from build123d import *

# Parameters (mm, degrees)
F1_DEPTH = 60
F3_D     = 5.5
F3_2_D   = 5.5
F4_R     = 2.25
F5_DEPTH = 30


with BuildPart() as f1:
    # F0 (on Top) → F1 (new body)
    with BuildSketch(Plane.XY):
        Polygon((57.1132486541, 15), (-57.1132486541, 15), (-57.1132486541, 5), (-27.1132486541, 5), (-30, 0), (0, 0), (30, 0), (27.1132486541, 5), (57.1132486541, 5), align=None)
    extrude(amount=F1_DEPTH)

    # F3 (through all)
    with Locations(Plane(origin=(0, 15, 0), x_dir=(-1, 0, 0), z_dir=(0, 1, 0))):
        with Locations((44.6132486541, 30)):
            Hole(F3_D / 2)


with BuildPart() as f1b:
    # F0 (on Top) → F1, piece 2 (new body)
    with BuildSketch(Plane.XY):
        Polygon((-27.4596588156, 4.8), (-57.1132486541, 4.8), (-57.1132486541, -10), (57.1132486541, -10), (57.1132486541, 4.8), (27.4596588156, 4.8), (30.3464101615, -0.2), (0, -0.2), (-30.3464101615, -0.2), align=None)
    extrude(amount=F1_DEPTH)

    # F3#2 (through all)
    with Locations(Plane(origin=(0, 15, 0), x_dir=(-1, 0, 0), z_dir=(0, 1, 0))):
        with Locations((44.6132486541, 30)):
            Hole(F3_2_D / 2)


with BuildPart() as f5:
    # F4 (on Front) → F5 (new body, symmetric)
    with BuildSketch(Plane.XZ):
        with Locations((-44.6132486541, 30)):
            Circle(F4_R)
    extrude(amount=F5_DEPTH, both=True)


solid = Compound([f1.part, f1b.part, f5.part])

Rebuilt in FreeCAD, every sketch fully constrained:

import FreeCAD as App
import Part
import Sketcher

V = App.Vector
Q = App.Units.Quantity


def add_polygon(sketch, points):
    """Adds a closed chain of lines whose ends are joined by coincident constraints."""
    first, n = sketch.GeometryCount, len(points)
    for a, b in zip(points, points[1:] + points[:1]):
        sketch.addGeometry(Part.LineSegment(App.Vector(*a, 0), App.Vector(*b, 0)), False)
    for i in range(n):
        sketch.addConstraint(Sketcher.Constraint("Coincident", first + i, 2, first + (i + 1) % n, 1))

doc = App.newDocument("Part")
body = doc.addObject("PartDesign::Body", "Body")

sketch1 = body.newObject("Sketcher::SketchObject", "Sketch")
sketch1.AttachmentSupport = (doc.getObject("XY_Plane"), [""])
sketch1.MapMode = "FlatFace"
add_polygon(sketch1, [(57, 15), (-57, 15), (-57, 5), (-27, 5), (-30, 0), (30, 0), (27, 5), (57, 5)])
sketch1.addConstraint(Sketcher.Constraint("Horizontal", 0))
sketch1.addConstraint(Sketcher.Constraint("Vertical", 1))
sketch1.addConstraint(Sketcher.Constraint("Horizontal", 2))
sketch1.addConstraint(Sketcher.Constraint("Horizontal", 4))
sketch1.addConstraint(Sketcher.Constraint("Horizontal", 6))
sketch1.addConstraint(Sketcher.Constraint("Vertical", 7))
sketch1.addConstraint(Sketcher.Constraint("Symmetric", 3, 2, 4, 2, -1, 1))
sketch1.addConstraint(Sketcher.Constraint("Symmetric", 2, 2, 5, 2, -2))
sketch1.addConstraint(Sketcher.Constraint("Equal", 2, 6))
sketch1.addConstraint(Sketcher.Constraint("DistanceX", 2, 1, 2, 2, 30.0))
sketch1.addConstraint(Sketcher.Constraint("DistanceX", 4, 1, 4, 2, 60.0))
sketch1.addConstraint(Sketcher.Constraint("DistanceY", 1, 2, 1, 1, 10.0))
sketch1.addConstraint(Sketcher.Constraint("Angle", 3, Q("-120 deg")))
sketch1.addConstraint(Sketcher.Constraint("DistanceY", -1, 1, 0, 2, 15.0))
pad1 = body.newObject("PartDesign::Pad", "Pad")
pad1.Profile = sketch1
pad1.Length = 60

sketch2 = body.newObject("Sketcher::SketchObject", "Sketch001")
sketch2.AttachmentSupport = (doc.getObject("XZ_Plane"), [""])
sketch2.MapMode = "FlatFace"
sketch2.AttachmentOffset = App.Placement(V(0, 0, -15), App.Rotation())
sketch2.addGeometry(Part.Circle(V(-44.6, 30, 0), V(0, 0, 1), 2.8), False)
sketch2.addConstraint(Sketcher.Constraint("Diameter", 0, 5.5))
sketch2.addConstraint(Sketcher.Constraint("DistanceY", -1, 1, 0, 3, 30.0))
sketch2.addConstraint(Sketcher.Constraint("DistanceX", 0, 3, -1, 1, 44.613249))
doc.recompute()
hole = body.newObject("PartDesign::Hole", "Hole")
hole.Profile = sketch2
hole.ThreadType = "None"
hole.Diameter = 5.5
hole.DepthType = "ThroughAll"
hole.Reversed = True
body2 = doc.addObject("PartDesign::Body", "Body001")

sketch3 = body2.newObject("Sketcher::SketchObject", "Sketch002")
sketch3.AttachmentSupport = (doc.getObject("XY_Plane001"), [""])
sketch3.MapMode = "FlatFace"
add_polygon(sketch3, [(-27, 5), (-57, 5), (-57, -10), (57, -10), (57, 5), (27, 5), (30, 0), (-30, 0)])
sketch3.addConstraint(Sketcher.Constraint("Horizontal", 0))
sketch3.addConstraint(Sketcher.Constraint("Vertical", 1))
sketch3.addConstraint(Sketcher.Constraint("Horizontal", 2))
sketch3.addConstraint(Sketcher.Constraint("Vertical", 3))
sketch3.addConstraint(Sketcher.Constraint("Horizontal", 4))
sketch3.addConstraint(Sketcher.Constraint("Horizontal", 6))
sketch3.addConstraint(Sketcher.Constraint("Symmetric", 0, 2, 3, 2, -2))
sketch3.addConstraint(Sketcher.Constraint("Equal", 0, 4))
sketch3.addConstraint(Sketcher.Constraint("Equal", 5, 7))
sketch3.addConstraint(Sketcher.Constraint("Angle", 5, Q("-60 deg")))
sketch3.addConstraint(Sketcher.Constraint("DistanceY", 1, 2, 1, 1, 14.8))
sketch3.addConstraint(Sketcher.Constraint("DistanceY", 1, 2, -1, 1, 10.0))
sketch3.addConstraint(Sketcher.Constraint("DistanceY", 5, 2, 4, 2, 5.0))
sketch3.addConstraint(Sketcher.Constraint("DistanceX", 0, 2, 0, 1, 29.65359))
sketch3.addConstraint(Sketcher.Constraint("DistanceX", 6, 2, 6, 1, 60.69282))
pad2 = body2.newObject("PartDesign::Pad", "Pad001")
pad2.Profile = sketch3
pad2.Length = 60

sketch4 = body2.newObject("Sketcher::SketchObject", "Sketch003")
sketch4.AttachmentSupport = (doc.getObject("XZ_Plane001"), [""])
sketch4.MapMode = "FlatFace"
sketch4.AttachmentOffset = App.Placement(V(0, 0, -15), App.Rotation())
sketch4.addGeometry(Part.Circle(V(-44.6, 30, 0), V(0, 0, 1), 2.8), False)
sketch4.addConstraint(Sketcher.Constraint("Diameter", 0, 5.5))
sketch4.addConstraint(Sketcher.Constraint("DistanceY", -1, 1, 0, 3, 30.0))
sketch4.addConstraint(Sketcher.Constraint("DistanceX", 0, 3, -1, 1, 44.613249))
doc.recompute()
hole2 = body2.newObject("PartDesign::Hole", "Hole001")
hole2.Profile = sketch4
hole2.ThreadType = "None"
hole2.Diameter = 5.5
hole2.DepthType = "ThroughAll"
hole2.Reversed = True
body3 = doc.addObject("PartDesign::Body", "Body002")

sketch5 = body3.newObject("Sketcher::SketchObject", "Sketch004")
sketch5.AttachmentSupport = (doc.getObject("XZ_Plane002"), [""])
sketch5.MapMode = "FlatFace"
sketch5.addGeometry(Part.Circle(V(-44.6, 30, 0), V(0, 0, 1), 2.2), False)
sketch5.addConstraint(Sketcher.Constraint("Diameter", 0, 4.5))
sketch5.addConstraint(Sketcher.Constraint("DistanceY", -1, 1, 0, 3, 30.0))
sketch5.addConstraint(Sketcher.Constraint("DistanceX", 0, 3, -1, 1, 44.613249))
pad3 = body3.newObject("PartDesign::Pad", "Pad002")
pad3.Profile = sketch5
pad3.Length = 60
pad3.Midplane = True

doc.recompute()
